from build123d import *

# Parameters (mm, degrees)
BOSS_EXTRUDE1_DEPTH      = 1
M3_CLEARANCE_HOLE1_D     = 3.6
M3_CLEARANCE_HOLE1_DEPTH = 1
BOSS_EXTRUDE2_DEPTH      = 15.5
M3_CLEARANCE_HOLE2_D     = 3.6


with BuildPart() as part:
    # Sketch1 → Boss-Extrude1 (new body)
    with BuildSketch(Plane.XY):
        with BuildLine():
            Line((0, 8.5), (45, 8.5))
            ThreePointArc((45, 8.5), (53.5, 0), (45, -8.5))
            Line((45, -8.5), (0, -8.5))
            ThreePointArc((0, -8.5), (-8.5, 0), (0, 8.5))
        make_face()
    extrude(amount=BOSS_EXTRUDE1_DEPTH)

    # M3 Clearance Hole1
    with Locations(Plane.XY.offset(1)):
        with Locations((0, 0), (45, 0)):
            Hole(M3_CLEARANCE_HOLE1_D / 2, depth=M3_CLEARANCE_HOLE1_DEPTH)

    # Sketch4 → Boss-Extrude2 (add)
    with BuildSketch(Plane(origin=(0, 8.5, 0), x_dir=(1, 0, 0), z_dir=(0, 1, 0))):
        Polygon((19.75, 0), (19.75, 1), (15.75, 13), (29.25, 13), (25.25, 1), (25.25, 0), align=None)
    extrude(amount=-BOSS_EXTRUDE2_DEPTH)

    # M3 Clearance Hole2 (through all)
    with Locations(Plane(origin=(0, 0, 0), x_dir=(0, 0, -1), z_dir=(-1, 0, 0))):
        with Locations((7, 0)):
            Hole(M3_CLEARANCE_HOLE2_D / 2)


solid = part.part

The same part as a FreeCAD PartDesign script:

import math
import FreeCAD as App
import Part
import Sketcher
Q = App.Units.Quantity


def add_polygon(sketch, points):
    """Adds a closed chain of lines whose ends are joined by coincident constraints."""
    first, n = sketch.GeometryCount, len(points)
    for a, b in zip(points, points[1:] + points[:1]):
        sketch.addGeometry(Part.LineSegment(App.Vector(*a, 0), App.Vector(*b, 0)), False)
    for i in range(n):
        sketch.addConstraint(Sketcher.Constraint("Coincident", first + i, 2, first + (i + 1) % n, 1))

doc = App.newDocument("Part")
body = doc.addObject("PartDesign::Body", "Body")

# Sketch on XY plane
sketch1 = doc.addObject("Sketcher::SketchObject", "Sketch")
body.addObject(sketch1)
sketch1.AttachmentSupport = (doc.XY_Plane, [""])
sketch1.MapMode = "FlatFace"
sketch1.addGeometry([
    Part.LineSegment(App.Vector(45, 8, 0), App.Vector(0, 8, 0)),
    Part.ArcOfCircle(Part.Circle(App.Vector(0, 0, 0), App.Vector(0, 0, 1), 8), math.radians(90), math.radians(270)),
    Part.LineSegment(App.Vector(0, -8, 0), App.Vector(45, -8, 0)),
    Part.ArcOfCircle(Part.Circle(App.Vector(45, 0, 0), App.Vector(0, 0, 1), 8), math.radians(-90), math.radians(90)),
], False)
sketch1.addConstraint([
    Sketcher.Constraint("Tangent", 0, 2, 1, 1),
    Sketcher.Constraint("Tangent", 1, 2, 2, 1),
    Sketcher.Constraint("Tangent", 2, 2, 3, 1),
    Sketcher.Constraint("Tangent", 3, 2, 0, 1),
    Sketcher.Constraint("Horizontal", 0),
    Sketcher.Constraint("Horizontal", 2),
    Sketcher.Constraint("Coincident", 1, 3, -1, 1),
    Sketcher.Constraint("Radius", 1, Q("8.5 mm")),
    Sketcher.Constraint("DistanceX", 0, 2, 0, 1, Q("45 mm")),
])
pad1 = doc.addObject("PartDesign::Pad", "Pad")
body.addObject(pad1)
pad1.Profile = sketch1
pad1.Length = 1

# Sketch on XY plane
sketch2 = doc.addObject("Sketcher::SketchObject", "Sketch001")
body.addObject(sketch2)
sketch2.AttachmentSupport = (doc.XY_Plane, [""])
sketch2.MapMode = "FlatFace"
sketch2.AttachmentOffset = App.Placement(App.Vector(0, 0, 1), App.Rotation())
sketch2.addGeometry([
    Part.Circle(App.Vector(0, 0, 0), App.Vector(0, 0, 1), 1.8),
    Part.Circle(App.Vector(45, 0, 0), App.Vector(0, 0, 1), 1.8),
], False)
sketch2.addConstraint([
    Sketcher.Constraint("Coincident", 0, 3, -1, 1),
    Sketcher.Constraint("Equal", 0, 1),
    Sketcher.Constraint("PointOnObject", 1, 3, -1),
    Sketcher.Constraint("Diameter", 0, Q("3.6 mm")),
    Sketcher.Constraint("DistanceX", -1, 1, 1, 3, Q("45 mm")),
])
doc.recompute()
hole = doc.addObject("PartDesign::Hole", "Hole")
body.addObject(hole)
hole.Profile = sketch2
hole.ThreadType = "None"
hole.Diameter = 3.6
hole.DepthType = "Dimension"
hole.Depth = 1
hole.DrillPoint = "Flat"

# Sketch on XZ plane
sketch3 = doc.addObject("Sketcher::SketchObject", "Sketch002")
body.addObject(sketch3)
sketch3.AttachmentSupport = (doc.XZ_Plane, [""])
sketch3.MapMode = "FlatFace"
sketch3.AttachmentOffset = App.Placement(App.Vector(0, 0, -8.5), App.Rotation())
add_polygon(sketch3, [(19.8, -1), (19.8, 0), (25.2, 0), (25.2, -1), (29.2, -13), (15.8, -13)])  # lines 0-5
sketch3.addConstraint([
    Sketcher.Constraint("Vertical", 0),
    Sketcher.Constraint("Horizontal", 1),
    Sketcher.Constraint("Vertical", 2),
    Sketcher.Constraint("Horizontal", 4),
    Sketcher.Constraint("PointOnObject", 0, 2, -1),
    Sketcher.Constraint("Horizontal", 2, 2, 5, 2),
    Sketcher.Constraint("Equal", 3, 5),
    Sketcher.Constraint("DistanceY", 0, 1, 0, 2, Q("1 mm")),
    Sketcher.Constraint("DistanceX", 1, 1, 1, 2, Q("5.5 mm")),
    Sketcher.Constraint("DistanceX", 4, 2, 4, 1, Q("13.5 mm")),
    Sketcher.Constraint("DistanceY", 3, 2, -1, 1, Q("13 mm")),
    Sketcher.Constraint("DistanceX", -1, 1, 0, 2, Q("19.75 mm")),
])
pad2 = doc.addObject("PartDesign::Pad", "Pad001")
body.addObject(pad2)
pad2.Profile = sketch3
pad2.Length = 15.5

# Sketch on YZ plane
sketch4 = doc.addObject("Sketcher::SketchObject", "Sketch003")
body.addObject(sketch4)
sketch4.AttachmentSupport = (doc.YZ_Plane, [""])
sketch4.MapMode = "FlatFace"
sketch4.addGeometry(Part.Circle(App.Vector(0, -7, 0), App.Vector(0, 0, 1), 1.8), False)
sketch4.addConstraint([
    Sketcher.Constraint("PointOnObject", 0, 3, -2),
    Sketcher.Constraint("Diameter", 0, Q("3.6 mm")),
    Sketcher.Constraint("DistanceY", 0, 3, -1, 1, Q("7 mm")),
])
doc.recompute()
hole2 = doc.addObject("PartDesign::Hole", "Hole001")
body.addObject(hole2)
hole2.Profile = sketch4
hole2.ThreadType = "None"
hole2.Diameter = 3.6
hole2.DepthType = "ThroughAll"
hole2.Reversed = True

doc.recompute()
